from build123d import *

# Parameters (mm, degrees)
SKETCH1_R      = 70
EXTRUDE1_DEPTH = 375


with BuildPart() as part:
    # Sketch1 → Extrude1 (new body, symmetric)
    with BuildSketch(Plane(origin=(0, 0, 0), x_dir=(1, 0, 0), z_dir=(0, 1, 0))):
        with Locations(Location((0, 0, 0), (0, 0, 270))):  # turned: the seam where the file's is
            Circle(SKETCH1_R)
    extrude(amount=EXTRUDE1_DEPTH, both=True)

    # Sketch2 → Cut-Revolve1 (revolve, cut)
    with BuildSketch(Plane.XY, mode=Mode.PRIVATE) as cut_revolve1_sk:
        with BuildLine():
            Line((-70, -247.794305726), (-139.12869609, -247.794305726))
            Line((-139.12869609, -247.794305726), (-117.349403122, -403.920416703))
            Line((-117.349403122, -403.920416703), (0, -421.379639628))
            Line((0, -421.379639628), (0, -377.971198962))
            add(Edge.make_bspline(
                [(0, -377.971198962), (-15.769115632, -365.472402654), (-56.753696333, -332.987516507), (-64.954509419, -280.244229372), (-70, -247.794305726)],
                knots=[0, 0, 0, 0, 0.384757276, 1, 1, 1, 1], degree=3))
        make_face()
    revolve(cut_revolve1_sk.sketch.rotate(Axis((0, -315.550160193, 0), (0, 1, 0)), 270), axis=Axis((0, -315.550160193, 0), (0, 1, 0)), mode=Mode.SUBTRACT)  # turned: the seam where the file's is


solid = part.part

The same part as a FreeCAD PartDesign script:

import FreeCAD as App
import Part
import Sketcher
Q = App.Units.Quantity

doc = App.newDocument("Part")
body = doc.addObject("PartDesign::Body", "Body")

# Sketch on XZ plane
sketch1 = body.newObject("Sketcher::SketchObject", "Sketch")
sketch1.AttachmentSupport = (doc.getObject("XZ_Plane"), [""])
sketch1.MapMode = "FlatFace"
sketch1.addGeometry(Part.Circle(App.Vector(0, 0, 0), App.Vector(0, 0, 1), 70), False)
sketch1.addConstraint([
    Sketcher.Constraint("Coincident", 0, 3, -1, 1),
    Sketcher.Constraint("Diameter", 0, Q("140 mm")),
])
pad1 = body.newObject("PartDesign::Pad", "Pad")
pad1.Profile = sketch1
pad1.Length = 750
pad1.Midplane = True

# Sketch on XY plane
sketch2 = body.newObject("Sketcher::SketchObject", "Sketch001")
sketch2.AttachmentSupport = (doc.getObject("XY_Plane"), [""])
sketch2.MapMode = "FlatFace"
sketch2.addGeometry([
    Part.LineSegment(App.Vector(-70, -247.794306, 0), App.Vector(-139.128696, -247.794306, 0)),  # 0
    Part.LineSegment(App.Vector(-139.128696, -247.794306, 0), App.Vector(-117.349403, -403.920417, 0)),  # 1
    Part.LineSegment(App.Vector(-117.349403, -403.920417, 0), App.Vector(0, -421.37964, 0)),  # 2
    Part.LineSegment(App.Vector(0, -421.37964, 0), App.Vector(0, -377.971199, 0)),  # 3
    Part.BSplineCurve([App.Vector(0, -377.971199, 0), App.Vector(-15.769116, -365.472403, 0), App.Vector(-56.753696, -332.987517, 0), App.Vector(-64.954509, -280.244229, 0), App.Vector(-70, -247.794306, 0)], [4, 1, 4], [0, 0.384757276, 1], False, 3, [1, 1, 1, 1, 1], False),  # 4
], False)
sketch2.addConstraint([
    Sketcher.Constraint("Block", 4),
    Sketcher.Constraint("Coincident", 0, 2, 1, 1),
    Sketcher.Constraint("Coincident", 1, 2, 2, 1),
    Sketcher.Constraint("Coincident", 2, 2, 3, 1),
    Sketcher.Constraint("Coincident", 3, 2, 4, 1),
    Sketcher.Constraint("Coincident", 4, 2, 0, 1),
    Sketcher.Constraint("Horizontal", 0),
    Sketcher.Constraint("Vertical", 3),
    Sketcher.Constraint("DistanceY", 3, 1, 3, 2, Q("43.408441 mm")),
    Sketcher.Constraint("DistanceX", 0, 2, 0, 1, Q("69.128696 mm")),
    Sketcher.Constraint("DistanceY", 1, 2, 0, 2, Q("156.126111 mm")),
    Sketcher.Constraint("Distance", 1, Q("157.637877 mm")),
])
groove = body.newObject("PartDesign::Groove", "Groove")
groove.Profile = sketch2
groove.ReferenceAxis = (sketch2, ["V_Axis"])
groove.Angle = 360

doc.recompute()
